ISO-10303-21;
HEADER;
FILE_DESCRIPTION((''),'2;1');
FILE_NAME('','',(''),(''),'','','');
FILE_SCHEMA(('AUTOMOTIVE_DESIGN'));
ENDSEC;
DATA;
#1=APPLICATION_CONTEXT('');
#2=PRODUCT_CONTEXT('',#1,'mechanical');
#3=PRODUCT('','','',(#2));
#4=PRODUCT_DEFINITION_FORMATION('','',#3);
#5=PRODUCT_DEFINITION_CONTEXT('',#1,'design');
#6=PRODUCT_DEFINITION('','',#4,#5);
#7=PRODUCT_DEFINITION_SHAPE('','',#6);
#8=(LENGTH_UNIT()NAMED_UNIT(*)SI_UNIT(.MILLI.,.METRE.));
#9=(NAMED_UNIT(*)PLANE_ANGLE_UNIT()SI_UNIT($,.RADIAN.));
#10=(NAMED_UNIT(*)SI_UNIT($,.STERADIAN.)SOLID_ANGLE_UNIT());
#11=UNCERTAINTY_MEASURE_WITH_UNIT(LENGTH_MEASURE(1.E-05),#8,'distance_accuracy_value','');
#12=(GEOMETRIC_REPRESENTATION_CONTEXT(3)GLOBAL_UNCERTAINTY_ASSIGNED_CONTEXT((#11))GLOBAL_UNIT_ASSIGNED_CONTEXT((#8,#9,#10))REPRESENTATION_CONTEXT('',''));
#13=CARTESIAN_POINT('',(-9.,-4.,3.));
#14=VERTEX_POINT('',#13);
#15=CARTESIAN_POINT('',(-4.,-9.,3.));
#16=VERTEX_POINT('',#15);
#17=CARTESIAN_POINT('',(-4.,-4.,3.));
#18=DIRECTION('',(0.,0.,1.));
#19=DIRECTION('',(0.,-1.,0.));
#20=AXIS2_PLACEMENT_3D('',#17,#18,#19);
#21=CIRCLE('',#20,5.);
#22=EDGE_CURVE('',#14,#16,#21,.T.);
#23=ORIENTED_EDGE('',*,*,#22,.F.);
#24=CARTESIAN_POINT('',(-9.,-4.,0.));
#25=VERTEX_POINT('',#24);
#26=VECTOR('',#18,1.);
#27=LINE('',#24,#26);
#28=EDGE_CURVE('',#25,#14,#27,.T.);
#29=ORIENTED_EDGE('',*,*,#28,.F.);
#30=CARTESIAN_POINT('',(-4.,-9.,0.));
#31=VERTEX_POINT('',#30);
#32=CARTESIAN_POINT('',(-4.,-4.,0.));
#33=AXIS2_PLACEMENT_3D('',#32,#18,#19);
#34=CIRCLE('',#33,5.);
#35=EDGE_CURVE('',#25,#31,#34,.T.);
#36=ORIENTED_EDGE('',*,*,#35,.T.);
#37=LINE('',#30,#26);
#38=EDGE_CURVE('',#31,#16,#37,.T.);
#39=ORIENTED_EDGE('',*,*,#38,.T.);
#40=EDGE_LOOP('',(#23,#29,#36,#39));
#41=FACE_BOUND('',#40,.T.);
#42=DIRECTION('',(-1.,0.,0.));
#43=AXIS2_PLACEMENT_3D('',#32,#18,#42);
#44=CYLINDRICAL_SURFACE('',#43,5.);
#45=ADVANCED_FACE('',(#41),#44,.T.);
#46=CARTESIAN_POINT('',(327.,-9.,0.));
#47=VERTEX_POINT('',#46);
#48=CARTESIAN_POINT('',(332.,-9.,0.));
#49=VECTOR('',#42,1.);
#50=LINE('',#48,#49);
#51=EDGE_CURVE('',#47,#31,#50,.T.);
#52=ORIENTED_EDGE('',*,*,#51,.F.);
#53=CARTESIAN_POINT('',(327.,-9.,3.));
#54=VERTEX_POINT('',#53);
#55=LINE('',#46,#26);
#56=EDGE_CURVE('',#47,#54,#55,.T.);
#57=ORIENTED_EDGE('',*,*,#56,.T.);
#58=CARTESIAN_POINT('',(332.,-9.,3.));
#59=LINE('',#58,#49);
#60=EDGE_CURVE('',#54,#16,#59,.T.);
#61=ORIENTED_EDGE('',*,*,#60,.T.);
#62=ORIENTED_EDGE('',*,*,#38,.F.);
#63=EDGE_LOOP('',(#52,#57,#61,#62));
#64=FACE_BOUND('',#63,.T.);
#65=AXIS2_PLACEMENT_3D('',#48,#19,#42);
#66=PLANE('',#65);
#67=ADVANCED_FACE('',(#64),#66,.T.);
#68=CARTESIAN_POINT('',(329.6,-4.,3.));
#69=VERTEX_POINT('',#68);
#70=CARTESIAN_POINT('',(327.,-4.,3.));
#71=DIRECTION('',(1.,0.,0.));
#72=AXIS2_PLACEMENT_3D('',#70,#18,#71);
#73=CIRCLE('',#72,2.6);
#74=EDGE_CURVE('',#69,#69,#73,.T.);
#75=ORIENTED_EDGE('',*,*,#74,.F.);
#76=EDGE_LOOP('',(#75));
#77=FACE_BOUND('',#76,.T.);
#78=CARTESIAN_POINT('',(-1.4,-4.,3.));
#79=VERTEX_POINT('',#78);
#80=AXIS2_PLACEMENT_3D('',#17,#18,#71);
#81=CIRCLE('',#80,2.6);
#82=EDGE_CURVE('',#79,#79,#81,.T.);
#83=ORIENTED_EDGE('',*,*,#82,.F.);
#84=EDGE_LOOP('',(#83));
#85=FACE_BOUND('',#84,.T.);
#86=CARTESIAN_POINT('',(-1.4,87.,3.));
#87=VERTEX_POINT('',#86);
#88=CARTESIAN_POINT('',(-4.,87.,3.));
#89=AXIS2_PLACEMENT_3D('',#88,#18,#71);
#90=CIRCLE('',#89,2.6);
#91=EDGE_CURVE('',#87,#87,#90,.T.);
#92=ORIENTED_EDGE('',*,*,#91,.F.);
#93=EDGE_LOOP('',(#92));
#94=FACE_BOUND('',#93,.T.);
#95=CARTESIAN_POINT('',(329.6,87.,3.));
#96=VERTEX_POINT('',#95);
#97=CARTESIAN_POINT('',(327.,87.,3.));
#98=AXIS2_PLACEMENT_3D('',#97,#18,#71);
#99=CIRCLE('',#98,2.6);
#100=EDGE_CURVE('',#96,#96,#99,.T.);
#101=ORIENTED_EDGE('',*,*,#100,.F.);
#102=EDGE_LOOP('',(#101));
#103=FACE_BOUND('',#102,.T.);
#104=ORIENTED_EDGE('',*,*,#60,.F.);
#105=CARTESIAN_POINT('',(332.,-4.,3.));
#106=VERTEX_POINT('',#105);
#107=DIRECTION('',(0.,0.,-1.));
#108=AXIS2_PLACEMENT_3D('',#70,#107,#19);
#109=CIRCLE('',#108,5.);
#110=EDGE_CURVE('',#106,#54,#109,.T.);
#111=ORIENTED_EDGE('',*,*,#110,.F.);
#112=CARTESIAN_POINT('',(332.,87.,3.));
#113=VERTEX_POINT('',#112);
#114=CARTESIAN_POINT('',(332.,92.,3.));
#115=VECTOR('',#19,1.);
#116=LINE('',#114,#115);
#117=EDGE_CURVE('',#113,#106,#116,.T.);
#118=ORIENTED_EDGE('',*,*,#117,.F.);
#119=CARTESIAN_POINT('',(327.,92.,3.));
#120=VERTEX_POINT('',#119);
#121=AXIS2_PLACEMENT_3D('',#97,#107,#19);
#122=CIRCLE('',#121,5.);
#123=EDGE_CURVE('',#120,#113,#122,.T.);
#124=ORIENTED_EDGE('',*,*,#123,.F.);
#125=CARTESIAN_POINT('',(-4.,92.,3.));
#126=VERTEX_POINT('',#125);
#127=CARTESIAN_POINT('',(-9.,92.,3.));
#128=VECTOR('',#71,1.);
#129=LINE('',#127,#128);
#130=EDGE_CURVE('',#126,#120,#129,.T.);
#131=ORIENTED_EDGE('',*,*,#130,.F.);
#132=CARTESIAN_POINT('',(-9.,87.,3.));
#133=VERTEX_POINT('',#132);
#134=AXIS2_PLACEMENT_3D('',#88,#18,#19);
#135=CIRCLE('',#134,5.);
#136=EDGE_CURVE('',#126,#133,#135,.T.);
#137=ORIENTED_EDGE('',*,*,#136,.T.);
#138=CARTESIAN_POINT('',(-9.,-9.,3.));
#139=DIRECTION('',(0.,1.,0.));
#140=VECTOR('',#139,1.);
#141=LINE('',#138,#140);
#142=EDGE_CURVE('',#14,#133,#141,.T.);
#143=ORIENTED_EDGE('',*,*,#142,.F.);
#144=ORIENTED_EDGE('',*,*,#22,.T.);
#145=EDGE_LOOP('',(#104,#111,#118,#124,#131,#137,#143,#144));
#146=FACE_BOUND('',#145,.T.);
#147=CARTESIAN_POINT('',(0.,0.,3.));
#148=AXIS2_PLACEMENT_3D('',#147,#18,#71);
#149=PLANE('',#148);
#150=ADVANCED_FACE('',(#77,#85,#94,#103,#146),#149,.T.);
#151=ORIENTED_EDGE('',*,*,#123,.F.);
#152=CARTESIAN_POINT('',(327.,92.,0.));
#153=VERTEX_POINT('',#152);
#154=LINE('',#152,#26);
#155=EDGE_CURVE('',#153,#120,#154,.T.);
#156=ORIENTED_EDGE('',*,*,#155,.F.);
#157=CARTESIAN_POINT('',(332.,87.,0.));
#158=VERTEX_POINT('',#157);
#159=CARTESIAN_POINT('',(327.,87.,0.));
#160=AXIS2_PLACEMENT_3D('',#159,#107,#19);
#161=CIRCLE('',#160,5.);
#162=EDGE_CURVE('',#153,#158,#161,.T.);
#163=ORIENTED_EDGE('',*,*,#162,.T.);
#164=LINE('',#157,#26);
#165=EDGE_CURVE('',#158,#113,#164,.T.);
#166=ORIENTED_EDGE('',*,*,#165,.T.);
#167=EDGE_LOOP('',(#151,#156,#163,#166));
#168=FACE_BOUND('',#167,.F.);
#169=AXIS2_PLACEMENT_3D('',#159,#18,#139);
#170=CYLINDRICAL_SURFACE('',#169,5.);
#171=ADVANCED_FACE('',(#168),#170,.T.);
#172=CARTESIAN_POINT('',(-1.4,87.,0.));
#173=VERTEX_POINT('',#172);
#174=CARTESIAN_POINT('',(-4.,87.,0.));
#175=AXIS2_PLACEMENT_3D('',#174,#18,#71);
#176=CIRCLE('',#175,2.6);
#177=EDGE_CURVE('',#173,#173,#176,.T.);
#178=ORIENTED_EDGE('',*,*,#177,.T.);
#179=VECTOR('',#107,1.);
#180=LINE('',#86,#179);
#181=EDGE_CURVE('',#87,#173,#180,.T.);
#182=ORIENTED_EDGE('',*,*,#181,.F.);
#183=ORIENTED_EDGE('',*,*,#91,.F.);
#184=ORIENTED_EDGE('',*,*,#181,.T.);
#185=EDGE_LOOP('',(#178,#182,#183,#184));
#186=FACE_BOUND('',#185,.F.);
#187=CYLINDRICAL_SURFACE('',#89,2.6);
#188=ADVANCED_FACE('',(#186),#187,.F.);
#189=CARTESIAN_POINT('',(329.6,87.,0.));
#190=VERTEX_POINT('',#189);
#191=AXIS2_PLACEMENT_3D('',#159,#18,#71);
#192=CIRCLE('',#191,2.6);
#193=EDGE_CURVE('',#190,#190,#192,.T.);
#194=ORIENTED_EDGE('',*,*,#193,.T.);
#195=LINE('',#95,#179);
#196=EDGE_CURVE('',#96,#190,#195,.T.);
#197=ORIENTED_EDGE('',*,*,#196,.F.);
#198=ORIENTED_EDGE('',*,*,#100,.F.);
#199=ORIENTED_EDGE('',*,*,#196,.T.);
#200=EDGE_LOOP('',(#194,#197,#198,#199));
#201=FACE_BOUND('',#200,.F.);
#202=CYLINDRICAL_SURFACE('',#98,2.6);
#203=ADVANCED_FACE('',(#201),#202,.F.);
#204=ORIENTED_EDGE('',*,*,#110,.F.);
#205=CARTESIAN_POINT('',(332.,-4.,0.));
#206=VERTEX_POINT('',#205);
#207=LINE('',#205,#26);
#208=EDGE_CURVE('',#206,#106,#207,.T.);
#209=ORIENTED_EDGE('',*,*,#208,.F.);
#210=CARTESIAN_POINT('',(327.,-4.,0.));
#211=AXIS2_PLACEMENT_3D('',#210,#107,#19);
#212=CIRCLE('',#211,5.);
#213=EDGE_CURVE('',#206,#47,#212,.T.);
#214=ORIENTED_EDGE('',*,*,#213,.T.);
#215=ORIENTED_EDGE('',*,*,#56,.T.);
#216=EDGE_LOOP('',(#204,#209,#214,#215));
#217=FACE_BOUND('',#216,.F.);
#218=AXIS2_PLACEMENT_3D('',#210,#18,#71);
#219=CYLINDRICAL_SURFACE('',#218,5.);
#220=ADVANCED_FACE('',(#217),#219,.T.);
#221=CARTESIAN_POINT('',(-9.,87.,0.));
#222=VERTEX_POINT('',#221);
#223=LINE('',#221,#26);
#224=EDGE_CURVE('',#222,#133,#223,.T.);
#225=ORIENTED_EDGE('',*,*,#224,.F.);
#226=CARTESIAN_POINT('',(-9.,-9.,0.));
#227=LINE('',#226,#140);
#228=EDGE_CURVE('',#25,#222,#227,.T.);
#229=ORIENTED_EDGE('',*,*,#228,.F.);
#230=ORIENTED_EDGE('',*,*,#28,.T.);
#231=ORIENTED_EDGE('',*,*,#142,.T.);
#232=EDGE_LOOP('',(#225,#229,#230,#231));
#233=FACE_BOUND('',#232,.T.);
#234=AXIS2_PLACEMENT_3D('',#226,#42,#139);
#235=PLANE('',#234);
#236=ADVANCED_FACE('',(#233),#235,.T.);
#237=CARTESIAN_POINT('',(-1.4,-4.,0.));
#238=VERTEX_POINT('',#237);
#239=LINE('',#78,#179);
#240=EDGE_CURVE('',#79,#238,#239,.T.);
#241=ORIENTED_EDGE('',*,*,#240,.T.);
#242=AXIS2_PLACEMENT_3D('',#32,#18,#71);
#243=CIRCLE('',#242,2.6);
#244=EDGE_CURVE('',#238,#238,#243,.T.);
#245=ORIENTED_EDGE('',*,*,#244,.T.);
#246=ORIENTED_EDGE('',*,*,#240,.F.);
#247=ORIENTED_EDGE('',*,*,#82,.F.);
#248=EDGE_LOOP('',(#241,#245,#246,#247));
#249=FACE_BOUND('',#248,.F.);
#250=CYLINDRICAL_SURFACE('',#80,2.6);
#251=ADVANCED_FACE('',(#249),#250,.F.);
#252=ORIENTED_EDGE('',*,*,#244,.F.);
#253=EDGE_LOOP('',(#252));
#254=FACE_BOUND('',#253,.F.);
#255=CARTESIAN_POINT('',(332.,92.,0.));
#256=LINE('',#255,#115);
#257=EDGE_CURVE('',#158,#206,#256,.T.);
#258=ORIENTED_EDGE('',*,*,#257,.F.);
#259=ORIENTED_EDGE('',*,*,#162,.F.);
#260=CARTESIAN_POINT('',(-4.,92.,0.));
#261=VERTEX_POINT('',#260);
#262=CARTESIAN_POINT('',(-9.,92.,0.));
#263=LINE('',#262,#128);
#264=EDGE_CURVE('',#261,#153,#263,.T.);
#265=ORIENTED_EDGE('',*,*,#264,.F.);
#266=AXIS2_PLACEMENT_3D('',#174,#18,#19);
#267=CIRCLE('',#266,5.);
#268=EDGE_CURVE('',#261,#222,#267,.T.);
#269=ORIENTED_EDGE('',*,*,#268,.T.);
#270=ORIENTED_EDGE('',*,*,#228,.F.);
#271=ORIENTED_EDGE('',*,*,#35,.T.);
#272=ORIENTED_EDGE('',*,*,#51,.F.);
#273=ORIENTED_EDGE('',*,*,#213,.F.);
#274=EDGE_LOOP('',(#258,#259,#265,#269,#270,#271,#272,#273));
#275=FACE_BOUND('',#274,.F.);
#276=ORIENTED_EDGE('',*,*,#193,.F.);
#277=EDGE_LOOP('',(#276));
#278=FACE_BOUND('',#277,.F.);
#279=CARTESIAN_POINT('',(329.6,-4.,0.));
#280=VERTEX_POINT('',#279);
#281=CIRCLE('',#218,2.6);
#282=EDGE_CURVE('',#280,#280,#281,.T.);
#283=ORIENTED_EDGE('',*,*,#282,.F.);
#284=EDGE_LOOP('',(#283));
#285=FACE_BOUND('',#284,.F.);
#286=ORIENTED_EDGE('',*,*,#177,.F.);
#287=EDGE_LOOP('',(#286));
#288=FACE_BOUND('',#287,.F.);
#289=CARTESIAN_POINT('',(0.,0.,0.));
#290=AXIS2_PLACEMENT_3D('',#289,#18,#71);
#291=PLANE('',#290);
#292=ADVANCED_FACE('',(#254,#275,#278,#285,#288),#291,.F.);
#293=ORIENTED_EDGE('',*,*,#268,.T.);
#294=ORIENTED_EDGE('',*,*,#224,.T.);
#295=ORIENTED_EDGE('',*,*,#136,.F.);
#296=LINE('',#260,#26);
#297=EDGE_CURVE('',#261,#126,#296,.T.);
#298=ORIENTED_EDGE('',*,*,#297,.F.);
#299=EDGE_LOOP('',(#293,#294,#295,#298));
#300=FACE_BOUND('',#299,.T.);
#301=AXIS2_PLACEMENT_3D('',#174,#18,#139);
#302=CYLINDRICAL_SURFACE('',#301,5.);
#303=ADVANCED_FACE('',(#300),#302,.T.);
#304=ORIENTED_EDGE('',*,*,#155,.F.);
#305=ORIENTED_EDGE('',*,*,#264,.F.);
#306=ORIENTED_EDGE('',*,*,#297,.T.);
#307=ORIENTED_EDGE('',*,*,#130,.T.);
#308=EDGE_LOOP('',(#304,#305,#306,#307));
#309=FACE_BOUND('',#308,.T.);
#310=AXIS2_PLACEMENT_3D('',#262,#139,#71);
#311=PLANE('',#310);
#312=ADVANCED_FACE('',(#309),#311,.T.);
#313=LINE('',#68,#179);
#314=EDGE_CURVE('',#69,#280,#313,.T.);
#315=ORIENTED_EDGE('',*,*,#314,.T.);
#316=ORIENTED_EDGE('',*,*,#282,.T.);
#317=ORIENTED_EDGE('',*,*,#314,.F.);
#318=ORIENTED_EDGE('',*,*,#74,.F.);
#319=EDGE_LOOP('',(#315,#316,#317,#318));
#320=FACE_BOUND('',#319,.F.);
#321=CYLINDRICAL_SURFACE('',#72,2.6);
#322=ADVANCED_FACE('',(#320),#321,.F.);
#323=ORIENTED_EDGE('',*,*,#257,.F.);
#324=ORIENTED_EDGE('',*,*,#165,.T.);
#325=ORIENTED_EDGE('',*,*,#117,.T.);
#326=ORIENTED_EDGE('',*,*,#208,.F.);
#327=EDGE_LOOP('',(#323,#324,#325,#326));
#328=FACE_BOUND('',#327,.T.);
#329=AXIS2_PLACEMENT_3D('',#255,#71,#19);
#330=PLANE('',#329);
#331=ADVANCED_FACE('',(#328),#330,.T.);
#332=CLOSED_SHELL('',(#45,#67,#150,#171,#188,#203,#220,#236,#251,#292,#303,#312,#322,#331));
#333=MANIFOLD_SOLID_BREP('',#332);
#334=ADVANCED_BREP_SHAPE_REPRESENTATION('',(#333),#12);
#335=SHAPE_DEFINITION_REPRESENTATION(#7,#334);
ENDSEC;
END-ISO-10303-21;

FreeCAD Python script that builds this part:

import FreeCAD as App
import Part
import Sketcher

V = App.Vector
Q = App.Units.Quantity


def edges_at(feature, points):
    """Names of the edges that pass closest to the given points."""
    edges = feature.Shape.Edges
    near = lambda p: min(range(len(edges)), key=lambda i: edges[i].distToShape(Part.Vertex(*p))[0])
    return sorted({f"Edge{near(p) + 1}" for p in points})

doc = App.newDocument("Part")
body = doc.addObject("PartDesign::Body", "Body")

# Sketch on XY plane
sketch1 = body.newObject("Sketcher::SketchObject", "Sketch")
sketch1.AttachmentSupport = (doc.getObject("XY_Plane"), [""])
sketch1.MapMode = "FlatFace"
sketch1.addGeometry([
    Part.LineSegment(V(332, 92, 0), V(-9, 92, 0)),
    Part.LineSegment(V(-9, 92, 0), V(-9, -9, 0)),
    Part.LineSegment(V(-9, -9, 0), V(332, -9, 0)),
    Part.LineSegment(V(332, -9, 0), V(332, 92, 0)),
], False)
sketch1.addConstraint([
    Sketcher.Constraint("Coincident", 0, 2, 1, 1),
    Sketcher.Constraint("Coincident", 1, 2, 2, 1),
    Sketcher.Constraint("Coincident", 2, 2, 3, 1),
    Sketcher.Constraint("Coincident", 3, 2, 0, 1),
    Sketcher.Constraint("Horizontal", 0),
    Sketcher.Constraint("Vertical", 1),
    Sketcher.Constraint("Horizontal", 2),
    Sketcher.Constraint("Vertical", 3),
    Sketcher.Constraint("DistanceX", 0, 2, -1, 1, Q("9 mm")),
    Sketcher.Constraint("DistanceY", 1, 2, -1, 1, Q("9 mm")),
    Sketcher.Constraint("DistanceX", 0, 2, 0, 1, Q("341 mm")),
    Sketcher.Constraint("DistanceY", 1, 2, 1, 1, Q("101 mm")),
])
pad1 = body.newObject("PartDesign::Pad", "Pad")
pad1.Profile = sketch1
pad1.Length = 3

# Sketch on XY plane
sketch2 = body.newObject("Sketcher::SketchObject", "Sketch001")
sketch2.AttachmentSupport = (doc.getObject("XY_Plane"), [""])
sketch2.MapMode = "FlatFace"
sketch2.AttachmentOffset = App.Placement(V(0, 0, 3), App.Rotation())
sketch2.addGeometry([
    Part.Circle(V(-4, 87, 0), V(0, 0, 1), 2.6),
    Part.Circle(V(-4, -4, 0), V(0, 0, 1), 2.6),
    Part.Circle(V(327, -4, 0), V(0, 0, 1), 2.6),
    Part.Circle(V(327, 87, 0), V(0, 0, 1), 2.6),
], False)
sketch2.addConstraint([
    Sketcher.Constraint("Equal", 0, 1),
    Sketcher.Constraint("Equal", 1, 2),
    Sketcher.Constraint("Equal", 2, 3),
    Sketcher.Constraint("Horizontal", 1, 3, 2, 3),
    Sketcher.Constraint("Horizontal", 0, 3, 3, 3),
    Sketcher.Constraint("Vertical", 0, 3, 1, 3),
    Sketcher.Constraint("Vertical", 2, 3, 3, 3),
    Sketcher.Constraint("Diameter", 0, Q("5.2 mm")),
    Sketcher.Constraint("DistanceX", 0, 3, -1, 1, Q("4 mm")),
    Sketcher.Constraint("DistanceY", -1, 1, 0, 3, Q("87 mm")),
    Sketcher.Constraint("DistanceY", 1, 3, -1, 1, Q("4 mm")),
    Sketcher.Constraint("DistanceX", -1, 1, 2, 3, Q("327 mm")),
])
pocket1 = body.newObject("PartDesign::Pocket", "Pocket")
pocket1.Profile = sketch2
pocket1.Length = 3
doc.recompute()

fillet = body.newObject("PartDesign::Fillet", "Fillet")
fillet.Base = (pocket1, edges_at(pocket1, [
    (332, 92, 1.5),
    (332, -9, 1.5),
    (-9, 92, 1.5),
    (-9, -9, 1.5),
]))
fillet.Radius = 5

doc.recompute()
